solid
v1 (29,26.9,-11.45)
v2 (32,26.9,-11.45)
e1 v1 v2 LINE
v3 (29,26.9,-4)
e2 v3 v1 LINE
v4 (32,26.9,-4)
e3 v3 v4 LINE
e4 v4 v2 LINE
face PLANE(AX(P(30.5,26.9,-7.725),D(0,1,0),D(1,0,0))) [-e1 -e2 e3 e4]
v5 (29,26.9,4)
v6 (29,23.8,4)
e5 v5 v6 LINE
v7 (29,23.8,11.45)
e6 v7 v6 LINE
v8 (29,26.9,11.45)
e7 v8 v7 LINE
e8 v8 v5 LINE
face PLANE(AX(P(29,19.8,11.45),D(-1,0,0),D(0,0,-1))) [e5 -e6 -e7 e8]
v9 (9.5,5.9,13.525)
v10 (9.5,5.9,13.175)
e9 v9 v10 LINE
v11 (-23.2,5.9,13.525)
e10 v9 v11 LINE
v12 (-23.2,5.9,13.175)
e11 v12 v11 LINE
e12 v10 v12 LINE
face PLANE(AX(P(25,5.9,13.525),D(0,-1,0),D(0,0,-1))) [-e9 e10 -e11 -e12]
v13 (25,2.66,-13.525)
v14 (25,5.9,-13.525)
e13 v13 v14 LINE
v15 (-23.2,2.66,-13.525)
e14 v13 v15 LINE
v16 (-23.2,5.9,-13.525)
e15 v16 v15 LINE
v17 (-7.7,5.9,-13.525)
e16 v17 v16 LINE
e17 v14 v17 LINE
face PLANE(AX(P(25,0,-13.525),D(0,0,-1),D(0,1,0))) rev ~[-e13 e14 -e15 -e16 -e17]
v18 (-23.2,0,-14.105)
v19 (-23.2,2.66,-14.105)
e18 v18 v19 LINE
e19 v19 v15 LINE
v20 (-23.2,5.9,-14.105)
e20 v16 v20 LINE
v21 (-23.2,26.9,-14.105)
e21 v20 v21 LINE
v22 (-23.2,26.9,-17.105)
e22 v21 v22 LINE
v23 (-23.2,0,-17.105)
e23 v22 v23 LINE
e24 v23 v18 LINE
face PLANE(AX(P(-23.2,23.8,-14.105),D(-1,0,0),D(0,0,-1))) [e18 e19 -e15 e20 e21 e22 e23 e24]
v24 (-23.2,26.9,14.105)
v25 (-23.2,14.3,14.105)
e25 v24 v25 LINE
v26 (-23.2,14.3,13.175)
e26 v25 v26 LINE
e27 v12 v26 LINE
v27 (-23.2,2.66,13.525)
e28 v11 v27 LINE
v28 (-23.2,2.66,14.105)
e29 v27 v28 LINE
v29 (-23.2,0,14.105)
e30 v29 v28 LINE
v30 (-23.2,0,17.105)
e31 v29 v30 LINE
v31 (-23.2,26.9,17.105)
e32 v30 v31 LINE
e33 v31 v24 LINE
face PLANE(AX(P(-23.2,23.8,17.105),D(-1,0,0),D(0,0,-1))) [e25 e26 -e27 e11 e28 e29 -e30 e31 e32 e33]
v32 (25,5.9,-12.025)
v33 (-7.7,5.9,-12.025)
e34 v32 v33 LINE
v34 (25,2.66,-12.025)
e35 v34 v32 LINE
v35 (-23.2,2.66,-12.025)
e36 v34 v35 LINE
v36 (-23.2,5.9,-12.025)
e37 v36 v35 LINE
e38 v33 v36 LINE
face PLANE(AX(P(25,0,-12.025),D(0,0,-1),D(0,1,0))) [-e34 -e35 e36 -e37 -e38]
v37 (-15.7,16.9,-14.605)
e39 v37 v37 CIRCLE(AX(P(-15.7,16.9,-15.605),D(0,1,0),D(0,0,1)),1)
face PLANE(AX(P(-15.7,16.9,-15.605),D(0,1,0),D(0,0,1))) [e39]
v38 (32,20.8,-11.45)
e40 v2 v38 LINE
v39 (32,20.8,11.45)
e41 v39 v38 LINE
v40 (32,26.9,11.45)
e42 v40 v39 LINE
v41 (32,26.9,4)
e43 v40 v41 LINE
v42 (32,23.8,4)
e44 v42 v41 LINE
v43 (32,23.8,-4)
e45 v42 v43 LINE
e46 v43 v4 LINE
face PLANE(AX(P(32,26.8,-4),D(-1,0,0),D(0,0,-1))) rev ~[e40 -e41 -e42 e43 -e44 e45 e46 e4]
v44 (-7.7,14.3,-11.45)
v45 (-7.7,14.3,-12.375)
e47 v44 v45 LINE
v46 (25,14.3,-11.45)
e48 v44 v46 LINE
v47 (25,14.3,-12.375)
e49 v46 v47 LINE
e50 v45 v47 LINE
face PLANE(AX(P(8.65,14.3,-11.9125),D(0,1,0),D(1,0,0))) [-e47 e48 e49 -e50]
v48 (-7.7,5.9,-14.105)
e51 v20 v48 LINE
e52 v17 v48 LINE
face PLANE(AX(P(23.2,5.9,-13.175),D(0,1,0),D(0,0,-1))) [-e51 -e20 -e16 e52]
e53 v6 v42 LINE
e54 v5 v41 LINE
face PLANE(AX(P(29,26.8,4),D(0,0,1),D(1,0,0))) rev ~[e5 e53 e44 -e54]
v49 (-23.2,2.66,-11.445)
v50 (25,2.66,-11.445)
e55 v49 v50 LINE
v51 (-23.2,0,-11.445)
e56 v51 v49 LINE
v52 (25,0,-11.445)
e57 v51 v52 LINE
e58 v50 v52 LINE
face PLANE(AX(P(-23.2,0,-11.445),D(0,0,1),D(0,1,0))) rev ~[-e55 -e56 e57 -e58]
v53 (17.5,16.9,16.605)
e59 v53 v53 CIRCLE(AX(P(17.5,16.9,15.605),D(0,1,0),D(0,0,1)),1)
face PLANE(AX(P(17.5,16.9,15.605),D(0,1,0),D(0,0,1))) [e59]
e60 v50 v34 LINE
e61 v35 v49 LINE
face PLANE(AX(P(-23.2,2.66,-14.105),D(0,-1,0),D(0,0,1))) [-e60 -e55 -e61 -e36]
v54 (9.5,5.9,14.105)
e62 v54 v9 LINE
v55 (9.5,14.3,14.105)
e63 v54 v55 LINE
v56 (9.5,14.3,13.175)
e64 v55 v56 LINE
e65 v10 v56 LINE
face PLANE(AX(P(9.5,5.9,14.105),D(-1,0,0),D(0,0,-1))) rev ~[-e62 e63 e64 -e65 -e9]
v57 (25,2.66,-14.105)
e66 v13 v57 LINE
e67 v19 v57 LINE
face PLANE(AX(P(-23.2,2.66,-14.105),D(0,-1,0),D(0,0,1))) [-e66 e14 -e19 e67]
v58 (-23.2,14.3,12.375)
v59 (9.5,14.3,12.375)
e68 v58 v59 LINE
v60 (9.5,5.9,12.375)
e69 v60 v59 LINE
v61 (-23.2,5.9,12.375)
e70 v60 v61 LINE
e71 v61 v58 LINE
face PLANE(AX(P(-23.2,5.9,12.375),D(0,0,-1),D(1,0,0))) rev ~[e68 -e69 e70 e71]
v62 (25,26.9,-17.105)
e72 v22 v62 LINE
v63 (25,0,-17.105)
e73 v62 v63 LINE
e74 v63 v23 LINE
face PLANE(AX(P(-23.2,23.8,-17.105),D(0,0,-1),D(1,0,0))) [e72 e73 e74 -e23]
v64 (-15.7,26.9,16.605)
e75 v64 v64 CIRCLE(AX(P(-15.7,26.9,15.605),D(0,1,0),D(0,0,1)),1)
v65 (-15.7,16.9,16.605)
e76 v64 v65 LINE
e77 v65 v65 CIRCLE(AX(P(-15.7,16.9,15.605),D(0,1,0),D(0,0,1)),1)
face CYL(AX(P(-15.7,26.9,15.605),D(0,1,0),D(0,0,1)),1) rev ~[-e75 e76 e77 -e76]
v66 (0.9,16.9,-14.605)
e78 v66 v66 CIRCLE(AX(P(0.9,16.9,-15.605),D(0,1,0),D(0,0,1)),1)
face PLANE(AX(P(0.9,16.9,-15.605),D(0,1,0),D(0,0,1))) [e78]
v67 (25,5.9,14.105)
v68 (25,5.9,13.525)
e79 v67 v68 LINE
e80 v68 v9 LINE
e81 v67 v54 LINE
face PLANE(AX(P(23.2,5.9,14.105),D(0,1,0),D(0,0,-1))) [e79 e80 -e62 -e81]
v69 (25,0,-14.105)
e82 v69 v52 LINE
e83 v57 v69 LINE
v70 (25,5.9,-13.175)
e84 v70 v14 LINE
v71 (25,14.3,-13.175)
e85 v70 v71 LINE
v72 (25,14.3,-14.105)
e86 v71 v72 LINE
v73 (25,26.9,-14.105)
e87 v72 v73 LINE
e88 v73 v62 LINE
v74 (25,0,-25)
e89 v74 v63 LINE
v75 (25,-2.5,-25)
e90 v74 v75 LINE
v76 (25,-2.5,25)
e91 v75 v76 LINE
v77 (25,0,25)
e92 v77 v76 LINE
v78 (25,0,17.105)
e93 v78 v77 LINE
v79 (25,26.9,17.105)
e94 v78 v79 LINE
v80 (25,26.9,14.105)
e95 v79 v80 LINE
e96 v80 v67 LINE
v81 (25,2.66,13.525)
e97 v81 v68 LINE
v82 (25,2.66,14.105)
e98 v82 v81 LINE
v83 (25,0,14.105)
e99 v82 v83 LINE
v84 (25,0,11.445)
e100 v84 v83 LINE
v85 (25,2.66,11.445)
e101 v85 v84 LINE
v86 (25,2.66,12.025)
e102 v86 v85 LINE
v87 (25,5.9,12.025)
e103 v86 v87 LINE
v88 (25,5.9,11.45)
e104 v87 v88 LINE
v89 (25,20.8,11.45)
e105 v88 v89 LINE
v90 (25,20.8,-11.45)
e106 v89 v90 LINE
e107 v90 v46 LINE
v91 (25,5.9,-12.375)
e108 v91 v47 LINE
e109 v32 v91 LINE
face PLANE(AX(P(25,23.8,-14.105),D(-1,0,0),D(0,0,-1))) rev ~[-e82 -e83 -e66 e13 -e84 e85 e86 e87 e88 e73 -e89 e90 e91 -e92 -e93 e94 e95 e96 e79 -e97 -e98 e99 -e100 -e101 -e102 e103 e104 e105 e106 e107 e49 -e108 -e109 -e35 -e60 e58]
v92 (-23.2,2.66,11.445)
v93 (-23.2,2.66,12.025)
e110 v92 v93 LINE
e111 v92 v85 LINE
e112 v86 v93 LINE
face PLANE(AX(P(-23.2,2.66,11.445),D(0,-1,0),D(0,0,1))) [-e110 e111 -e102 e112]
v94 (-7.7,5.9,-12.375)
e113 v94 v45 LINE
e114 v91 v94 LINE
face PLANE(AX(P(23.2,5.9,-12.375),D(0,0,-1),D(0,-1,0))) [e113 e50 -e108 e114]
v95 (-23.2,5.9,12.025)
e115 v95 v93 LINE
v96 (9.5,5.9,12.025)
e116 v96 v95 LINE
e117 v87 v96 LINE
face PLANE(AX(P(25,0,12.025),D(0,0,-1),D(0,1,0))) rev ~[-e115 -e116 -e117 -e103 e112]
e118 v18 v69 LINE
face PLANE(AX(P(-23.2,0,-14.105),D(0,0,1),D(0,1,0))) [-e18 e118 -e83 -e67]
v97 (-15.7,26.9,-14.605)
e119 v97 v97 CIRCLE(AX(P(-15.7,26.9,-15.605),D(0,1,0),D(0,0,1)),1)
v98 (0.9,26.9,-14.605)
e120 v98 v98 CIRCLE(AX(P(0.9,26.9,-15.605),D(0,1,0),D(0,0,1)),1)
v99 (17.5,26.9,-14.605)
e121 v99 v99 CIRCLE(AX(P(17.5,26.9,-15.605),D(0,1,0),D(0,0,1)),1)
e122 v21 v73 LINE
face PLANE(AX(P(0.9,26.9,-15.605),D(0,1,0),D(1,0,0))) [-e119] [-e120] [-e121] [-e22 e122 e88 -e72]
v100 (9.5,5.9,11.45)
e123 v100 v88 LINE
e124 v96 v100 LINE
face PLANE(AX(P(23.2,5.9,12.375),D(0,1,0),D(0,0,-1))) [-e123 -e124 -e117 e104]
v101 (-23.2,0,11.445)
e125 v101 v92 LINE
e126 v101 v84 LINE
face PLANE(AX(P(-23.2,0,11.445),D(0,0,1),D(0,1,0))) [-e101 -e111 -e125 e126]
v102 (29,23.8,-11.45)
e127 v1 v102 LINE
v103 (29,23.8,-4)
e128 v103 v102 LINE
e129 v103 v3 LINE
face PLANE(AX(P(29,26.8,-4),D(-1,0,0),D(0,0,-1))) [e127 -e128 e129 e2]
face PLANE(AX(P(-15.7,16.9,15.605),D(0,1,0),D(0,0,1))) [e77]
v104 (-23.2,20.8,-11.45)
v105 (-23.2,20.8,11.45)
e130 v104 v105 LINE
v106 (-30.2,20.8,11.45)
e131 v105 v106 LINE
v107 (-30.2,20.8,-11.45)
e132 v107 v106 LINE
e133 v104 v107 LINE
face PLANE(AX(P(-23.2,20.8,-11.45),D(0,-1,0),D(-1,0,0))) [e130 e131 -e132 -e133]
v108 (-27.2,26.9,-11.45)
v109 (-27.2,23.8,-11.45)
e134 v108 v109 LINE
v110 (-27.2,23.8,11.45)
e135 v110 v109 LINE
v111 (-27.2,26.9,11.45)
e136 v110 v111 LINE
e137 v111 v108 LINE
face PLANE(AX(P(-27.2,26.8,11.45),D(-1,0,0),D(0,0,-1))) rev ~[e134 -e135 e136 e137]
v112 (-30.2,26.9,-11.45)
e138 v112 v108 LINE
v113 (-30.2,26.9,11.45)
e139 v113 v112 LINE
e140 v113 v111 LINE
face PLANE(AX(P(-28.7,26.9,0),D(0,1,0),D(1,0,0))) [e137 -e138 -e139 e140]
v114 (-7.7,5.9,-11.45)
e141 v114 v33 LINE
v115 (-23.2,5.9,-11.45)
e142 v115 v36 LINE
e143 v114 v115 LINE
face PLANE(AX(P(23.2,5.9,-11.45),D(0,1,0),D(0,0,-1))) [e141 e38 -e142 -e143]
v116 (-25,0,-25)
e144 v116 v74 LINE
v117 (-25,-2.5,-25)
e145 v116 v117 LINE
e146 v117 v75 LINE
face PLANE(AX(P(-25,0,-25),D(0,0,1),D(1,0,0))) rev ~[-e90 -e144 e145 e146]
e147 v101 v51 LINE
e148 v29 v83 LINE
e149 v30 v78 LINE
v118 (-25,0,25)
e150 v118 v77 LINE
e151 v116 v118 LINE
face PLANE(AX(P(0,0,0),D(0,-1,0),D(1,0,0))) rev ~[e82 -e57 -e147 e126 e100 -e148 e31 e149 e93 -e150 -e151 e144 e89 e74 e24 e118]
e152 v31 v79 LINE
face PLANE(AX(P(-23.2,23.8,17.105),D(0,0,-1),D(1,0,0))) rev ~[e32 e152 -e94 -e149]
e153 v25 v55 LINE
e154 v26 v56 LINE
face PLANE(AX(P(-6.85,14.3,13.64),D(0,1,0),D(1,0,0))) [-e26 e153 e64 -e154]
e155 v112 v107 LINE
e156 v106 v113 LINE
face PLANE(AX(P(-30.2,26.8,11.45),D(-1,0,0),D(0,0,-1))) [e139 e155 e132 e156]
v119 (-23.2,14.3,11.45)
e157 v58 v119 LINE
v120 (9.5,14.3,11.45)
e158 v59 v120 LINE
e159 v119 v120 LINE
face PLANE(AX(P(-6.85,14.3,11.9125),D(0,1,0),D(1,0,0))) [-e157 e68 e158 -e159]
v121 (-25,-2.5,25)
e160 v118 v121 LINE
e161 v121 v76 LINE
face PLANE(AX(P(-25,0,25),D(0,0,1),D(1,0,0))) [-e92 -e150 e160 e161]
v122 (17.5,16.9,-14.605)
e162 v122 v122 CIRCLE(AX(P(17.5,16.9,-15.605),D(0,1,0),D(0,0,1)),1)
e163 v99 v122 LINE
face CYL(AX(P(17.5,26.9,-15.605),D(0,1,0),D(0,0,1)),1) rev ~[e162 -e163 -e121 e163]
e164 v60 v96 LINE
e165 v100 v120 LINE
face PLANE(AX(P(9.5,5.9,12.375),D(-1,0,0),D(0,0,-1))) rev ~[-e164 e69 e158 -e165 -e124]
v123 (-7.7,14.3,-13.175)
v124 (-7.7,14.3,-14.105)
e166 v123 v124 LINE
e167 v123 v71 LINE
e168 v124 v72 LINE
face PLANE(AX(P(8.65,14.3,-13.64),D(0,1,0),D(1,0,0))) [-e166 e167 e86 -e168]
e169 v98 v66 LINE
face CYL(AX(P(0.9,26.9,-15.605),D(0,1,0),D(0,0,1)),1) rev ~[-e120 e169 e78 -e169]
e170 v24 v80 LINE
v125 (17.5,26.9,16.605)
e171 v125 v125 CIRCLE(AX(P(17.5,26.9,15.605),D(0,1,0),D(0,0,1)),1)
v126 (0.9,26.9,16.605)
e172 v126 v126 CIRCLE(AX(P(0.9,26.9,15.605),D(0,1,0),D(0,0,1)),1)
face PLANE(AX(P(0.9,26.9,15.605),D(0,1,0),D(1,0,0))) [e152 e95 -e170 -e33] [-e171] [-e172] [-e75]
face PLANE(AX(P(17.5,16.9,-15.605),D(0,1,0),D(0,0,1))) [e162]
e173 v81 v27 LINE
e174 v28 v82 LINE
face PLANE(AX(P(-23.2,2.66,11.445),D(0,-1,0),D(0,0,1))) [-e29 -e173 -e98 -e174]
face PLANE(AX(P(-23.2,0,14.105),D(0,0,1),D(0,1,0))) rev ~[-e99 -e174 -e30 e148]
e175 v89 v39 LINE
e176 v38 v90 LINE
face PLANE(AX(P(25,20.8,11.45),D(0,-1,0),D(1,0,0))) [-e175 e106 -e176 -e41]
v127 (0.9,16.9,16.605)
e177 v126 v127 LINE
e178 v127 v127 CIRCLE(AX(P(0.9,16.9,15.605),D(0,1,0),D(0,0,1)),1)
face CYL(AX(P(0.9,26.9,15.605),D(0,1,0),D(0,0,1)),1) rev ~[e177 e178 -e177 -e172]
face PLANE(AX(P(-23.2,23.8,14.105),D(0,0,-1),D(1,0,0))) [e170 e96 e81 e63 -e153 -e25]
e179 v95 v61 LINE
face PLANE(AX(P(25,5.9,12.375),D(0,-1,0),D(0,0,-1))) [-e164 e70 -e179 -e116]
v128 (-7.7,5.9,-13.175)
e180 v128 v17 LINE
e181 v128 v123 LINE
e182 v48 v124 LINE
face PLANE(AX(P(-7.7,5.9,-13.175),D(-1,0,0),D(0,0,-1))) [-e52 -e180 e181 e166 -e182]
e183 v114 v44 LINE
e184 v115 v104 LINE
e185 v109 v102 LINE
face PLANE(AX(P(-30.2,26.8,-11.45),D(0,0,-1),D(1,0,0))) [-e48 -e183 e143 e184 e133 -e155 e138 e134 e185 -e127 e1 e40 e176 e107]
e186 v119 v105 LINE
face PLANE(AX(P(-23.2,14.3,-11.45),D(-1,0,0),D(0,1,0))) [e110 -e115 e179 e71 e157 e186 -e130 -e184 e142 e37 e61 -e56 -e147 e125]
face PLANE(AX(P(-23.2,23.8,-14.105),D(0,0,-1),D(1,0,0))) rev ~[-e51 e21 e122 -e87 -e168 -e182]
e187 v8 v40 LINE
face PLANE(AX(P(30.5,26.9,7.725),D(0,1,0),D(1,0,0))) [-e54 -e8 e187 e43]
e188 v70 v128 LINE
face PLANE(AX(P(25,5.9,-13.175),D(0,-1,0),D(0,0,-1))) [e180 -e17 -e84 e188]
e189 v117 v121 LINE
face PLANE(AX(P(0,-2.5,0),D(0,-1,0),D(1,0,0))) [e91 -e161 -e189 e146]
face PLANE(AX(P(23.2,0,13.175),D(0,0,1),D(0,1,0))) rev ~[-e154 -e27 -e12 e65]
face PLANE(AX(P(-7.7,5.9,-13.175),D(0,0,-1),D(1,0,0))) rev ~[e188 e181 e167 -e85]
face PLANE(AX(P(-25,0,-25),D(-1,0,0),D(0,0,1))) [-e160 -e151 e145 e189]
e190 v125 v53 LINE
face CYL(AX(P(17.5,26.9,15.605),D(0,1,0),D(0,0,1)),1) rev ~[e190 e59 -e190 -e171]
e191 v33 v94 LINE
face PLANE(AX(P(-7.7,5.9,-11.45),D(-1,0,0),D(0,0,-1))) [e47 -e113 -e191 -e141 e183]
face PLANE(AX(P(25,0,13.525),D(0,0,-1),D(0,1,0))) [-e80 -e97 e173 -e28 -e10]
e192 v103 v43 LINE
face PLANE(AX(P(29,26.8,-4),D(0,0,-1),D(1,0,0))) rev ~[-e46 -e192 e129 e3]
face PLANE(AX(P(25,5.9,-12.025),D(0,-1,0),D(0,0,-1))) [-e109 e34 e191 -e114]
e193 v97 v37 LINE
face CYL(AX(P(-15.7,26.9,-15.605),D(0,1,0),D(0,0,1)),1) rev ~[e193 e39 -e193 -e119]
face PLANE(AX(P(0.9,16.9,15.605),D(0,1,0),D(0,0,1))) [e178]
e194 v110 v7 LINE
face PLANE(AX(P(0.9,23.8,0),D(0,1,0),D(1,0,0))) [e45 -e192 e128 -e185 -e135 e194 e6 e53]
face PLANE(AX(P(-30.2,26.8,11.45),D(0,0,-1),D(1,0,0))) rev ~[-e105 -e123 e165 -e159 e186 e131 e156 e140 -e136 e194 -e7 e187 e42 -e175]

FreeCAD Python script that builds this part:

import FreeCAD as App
import Part
import Sketcher

V = App.Vector


def add_polygon(sketch, points):
    """Adds a closed chain of lines whose ends are joined by coincident constraints."""
    first, n = sketch.GeometryCount, len(points)
    for a, b in zip(points, points[1:] + points[:1]):
        sketch.addGeometry(Part.LineSegment(App.Vector(*a, 0), App.Vector(*b, 0)), False)
    for i in range(n):
        sketch.addConstraint(Sketcher.Constraint("Coincident", first + i, 2, first + (i + 1) % n, 1))

doc = App.newDocument("Part")
body = doc.addObject("PartDesign::Body", "Body")

# Sketch on XZ plane
sketch1 = doc.addObject("Sketcher::SketchObject", "Sketch")
body.addObject(sketch1)
sketch1.AttachmentSupport = (doc.XZ_Plane, [""])
sketch1.MapMode = "FlatFace"
add_polygon(sketch1, [(-23, -12), (-23, 12), (23, 12), (23, -12)])  # lines 0-3
sketch1.addConstraint([
    Sketcher.Constraint("Vertical", 0),
    Sketcher.Constraint("Horizontal", 1),
    Sketcher.Constraint("Vertical", 2),
    Sketcher.Constraint("Horizontal", 3),
    Sketcher.Constraint("Symmetric", 0, 2, 2, 2, -1, 1),
    Sketcher.Constraint("DistanceX", 1, 1, 1, 2, 46.4),
    Sketcher.Constraint("DistanceY", 0, 1, 0, 2, 24.75),
])
pad1 = doc.addObject("PartDesign::Pad", "Pad")
body.addObject(pad1)
pad1.Profile = sketch1
pad1.Length = 5.9
pad1.Reversed = True

# Sketch on XZ plane
sketch2 = doc.addObject("Sketcher::SketchObject", "Sketch001")
body.addObject(sketch2)
sketch2.AttachmentSupport = (doc.XZ_Plane, [""])
sketch2.MapMode = "FlatFace"
sketch2.AttachmentOffset = App.Placement(V(0, 0, -5.9), App.Rotation())
add_polygon(sketch2, [(23, 11), (23, -11), (-23, -11), (-23, 11)])  # lines 0-3
sketch2.addConstraint([
    Sketcher.Constraint("Vertical", 0),
    Sketcher.Constraint("Horizontal", 1),
    Sketcher.Constraint("Vertical", 2),
    Sketcher.Constraint("Horizontal", 3),
    Sketcher.Constraint("Symmetric", 0, 2, 2, 2, -1, 1),
    Sketcher.Constraint("DistanceX", 1, 2, 1, 1, 46.4),
    Sketcher.Constraint("DistanceY", 0, 2, 0, 1, 22.9),
])
pad2 = doc.addObject("PartDesign::Pad", "Pad001")
body.addObject(pad2)
pad2.Profile = sketch2
pad2.Length = 2.5
pad2.Reversed = True

# Sketch on XZ plane
sketch3 = doc.addObject("Sketcher::SketchObject", "Sketch002")
body.addObject(sketch3)
sketch3.AttachmentSupport = (doc.XZ_Plane, [""])
sketch3.MapMode = "FlatFace"
add_polygon(sketch3, [(-25, 25), (-25, -25), (25, -25), (25, 25)])  # lines 0-3
sketch3.addConstraint([
    Sketcher.Constraint("Vertical", 0),
    Sketcher.Constraint("Horizontal", 1),
    Sketcher.Constraint("Vertical", 2),
    Sketcher.Constraint("Horizontal", 3),
    Sketcher.Constraint("Symmetric", 0, 2, 2, 2, -1, 1),
    Sketcher.Constraint("Equal", 3, 0),
    Sketcher.Constraint("DistanceX", 1, 1, 1, 2, 50.0),
])
pad3 = doc.addObject("PartDesign::Pad", "Pad002")
body.addObject(pad3)
pad3.Profile = sketch3
pad3.Length = 2.5

# Sketch on XZ plane
sketch4 = doc.addObject("Sketcher::SketchObject", "Sketch003")
body.addObject(sketch4)
sketch4.AttachmentSupport = (doc.XZ_Plane, [""])
sketch4.MapMode = "FlatFace"
add_polygon(sketch4, [(-23.2, -14.1), (-23.2, -13.2), (23.2, -13.2), (23.2, -14.1)])  # lines 0-3
sketch4.addConstraint([
    Sketcher.Constraint("Vertical", 0),
    Sketcher.Constraint("Horizontal", 1),
    Sketcher.Constraint("Vertical", 2),
    Sketcher.Constraint("Horizontal", 3),
    Sketcher.Constraint("DistanceX", 1, 1, 1, 2, 46.4),
    Sketcher.Constraint("DistanceY", 0, 1, 0, 2, 0.93),
    Sketcher.Constraint("DistanceX", 0, 2, -1, 1, 23.2),
    Sketcher.Constraint("DistanceY", 0, 2, -1, 1, 13.175),
])
pad4 = doc.addObject("PartDesign::Pad", "Pad003")
body.addObject(pad4)
pad4.Profile = sketch4
pad4.Length = 5.9
pad4.Reversed = True

# Sketch on XZ plane
sketch5 = doc.addObject("Sketcher::SketchObject", "Sketch004")
body.addObject(sketch5)
sketch5.AttachmentSupport = (doc.XZ_Plane, [""])
sketch5.MapMode = "FlatFace"
add_polygon(sketch5, [(-23.2, 13.2), (-23.2, 14.1), (23.2, 14.1), (23.2, 13.2)])  # lines 0-3
sketch5.addConstraint([
    Sketcher.Constraint("Vertical", 0),
    Sketcher.Constraint("Horizontal", 1),
    Sketcher.Constraint("Vertical", 2),
    Sketcher.Constraint("Horizontal", 3),
    Sketcher.Constraint("DistanceX", 1, 1, 1, 2, 46.4),
    Sketcher.Constraint("DistanceY", 0, 1, 0, 2, 0.93),
    Sketcher.Constraint("DistanceX", 0, 2, -1, 1, 23.2),
    Sketcher.Constraint("DistanceY", -1, 1, 0, 2, 14.105),
])
pad5 = doc.addObject("PartDesign::Pad", "Pad004")
body.addObject(pad5)
pad5.Profile = sketch5
pad5.Length = 5.9
pad5.Reversed = True

# Sketch on XZ plane
sketch6 = doc.addObject("Sketcher::SketchObject", "Sketch005")
body.addObject(sketch6)
sketch6.AttachmentSupport = (doc.XZ_Plane, [""])
sketch6.MapMode = "FlatFace"
add_polygon(sketch6, [(-23.2, -17.1), (-23.2, -14.1), (23.2, -14.1), (23.2, -17.1)])  # lines 0-3
sketch6.addConstraint([
    Sketcher.Constraint("Vertical", 0),
    Sketcher.Constraint("Horizontal", 1),
    Sketcher.Constraint("Vertical", 2),
    Sketcher.Constraint("Horizontal", 3),
    Sketcher.Constraint("DistanceY", 0, 1, 0, 2, 3.0),
    Sketcher.Constraint("DistanceX", 1, 1, 1, 2, 46.4),
    Sketcher.Constraint("DistanceX", 0, 2, -1, 1, 23.2),
    Sketcher.Constraint("DistanceY", 0, 2, -1, 1, 14.105),
])
pad6 = doc.addObject("PartDesign::Pad", "Pad005")
body.addObject(pad6)
pad6.Profile = sketch6
pad6.Length = 8.4
pad6.Reversed = True

# Sketch on XZ plane
sketch7 = doc.addObject("Sketcher::SketchObject", "Sketch006")
body.addObject(sketch7)
sketch7.AttachmentSupport = (doc.XZ_Plane, [""])
sketch7.MapMode = "FlatFace"
add_polygon(sketch7, [(-23.2, 14.1), (-23.2, 17.1), (23.2, 17.1), (23.2, 14.1)])  # lines 0-3
sketch7.addConstraint([
    Sketcher.Constraint("Vertical", 0),
    Sketcher.Constraint("Horizontal", 1),
    Sketcher.Constraint("Vertical", 2),
    Sketcher.Constraint("Horizontal", 3),
    Sketcher.Constraint("DistanceY", 0, 1, 0, 2, 3.0),
    Sketcher.Constraint("DistanceX", 1, 1, 1, 2, 46.4),
    Sketcher.Constraint("DistanceX", 0, 2, -1, 1, 23.2),
    Sketcher.Constraint("DistanceY", -1, 1, 0, 2, 17.105),
])
pad7 = doc.addObject("PartDesign::Pad", "Pad006")
body.addObject(pad7)
pad7.Profile = sketch7
pad7.Length = 8.4
pad7.Reversed = True

# Sketch on XZ plane
sketch8 = doc.addObject("Sketcher::SketchObject", "Sketch007")
body.addObject(sketch8)
sketch8.AttachmentSupport = (doc.XZ_Plane, [""])
sketch8.MapMode = "FlatFace"
sketch8.AttachmentOffset = App.Placement(V(0, 0, -8.4), App.Rotation())
add_polygon(sketch8, [(-23, -11), (-23, 11), (23, 11), (23, -11)])  # lines 0-3
sketch8.addConstraint([
    Sketcher.Constraint("Vertical", 0),
    Sketcher.Constraint("Horizontal", 1),
    Sketcher.Constraint("Vertical", 2),
    Sketcher.Constraint("Horizontal", 3),
    Sketcher.Constraint("Symmetric", 0, 2, 2, 2, -1, 1),
    Sketcher.Constraint("DistanceX", 1, 1, 1, 2, 46.4),
    Sketcher.Constraint("DistanceY", 0, 1, 0, 2, 22.9),
])
pad8 = doc.addObject("PartDesign::Pad", "Pad007")
body.addObject(pad8)
pad8.Profile = sketch8
pad8.Length = 8.4
pad8.Reversed = True

# Sketch on XZ plane
sketch9 = doc.addObject("Sketcher::SketchObject", "Sketch008")
body.addObject(sketch9)
sketch9.AttachmentSupport = (doc.XZ_Plane, [""])
sketch9.MapMode = "FlatFace"
sketch9.AttachmentOffset = App.Placement(V(0, 0, -8.4), App.Rotation())
add_polygon(sketch9, [(-23.2, 14.1), (-23.2, 17.1), (23.2, 17.1), (23.2, 14.1)])  # lines 0-3
sketch9.addConstraint([
    Sketcher.Constraint("Vertical", 0),
    Sketcher.Constraint("Horizontal", 1),
    Sketcher.Constraint("Vertical", 2),
    Sketcher.Constraint("Horizontal", 3),
    Sketcher.Constraint("DistanceY", 0, 1, 0, 2, 3.0),
    Sketcher.Constraint("DistanceX", 1, 1, 1, 2, 46.4),
    Sketcher.Constraint("DistanceX", 0, 2, -1, 1, 23.2),
    Sketcher.Constraint("DistanceY", -1, 1, 0, 2, 17.105),
])
pad9 = doc.addObject("PartDesign::Pad", "Pad008")
body.addObject(pad9)
pad9.Profile = sketch9
pad9.Length = 8.4
pad9.Reversed = True

# Sketch on YZ plane
sketch10 = doc.addObject("Sketcher::SketchObject", "Sketch009")
body.addObject(sketch10)
sketch10.AttachmentSupport = (doc.YZ_Plane, [""])
sketch10.MapMode = "FlatFace"
sketch10.AttachmentOffset = App.Placement(V(0, 0, 23.2), App.Rotation())
add_polygon(sketch10, [(16.8, 11.4), (5.9, 11.4), (5.9, 12.4), (0, 12.4), (0, -12.4), (5.9, -12.4), (5.9, -11.4), (16.8, -11.4)])  # lines 0-7
sketch10.addConstraint([
    Sketcher.Constraint("Horizontal", 0),
    Sketcher.Constraint("Vertical", 1),
    Sketcher.Constraint("Horizontal", 2),
    Sketcher.Constraint("Vertical", 3),
    Sketcher.Constraint("Horizontal", 4),
    Sketcher.Constraint("Vertical", 5),
    Sketcher.Constraint("Horizontal", 6),
    Sketcher.Constraint("Vertical", 7),
    Sketcher.Constraint("Symmetric", 2, 2, 3, 2, -1, 1),
    Sketcher.Constraint("Symmetric", 0, 2, 5, 2, -1),
    Sketcher.Constraint("DistanceX", 0, 2, 0, 1, 10.9),
    Sketcher.Constraint("DistanceX", 2, 2, 2, 1, 5.9),
    Sketcher.Constraint("DistanceY", 7, 1, 7, 2, 22.9),
    Sketcher.Constraint("DistanceY", 3, 2, 3, 1, 24.75),
])
pad10 = doc.addObject("PartDesign::Pad", "Pad009")
body.addObject(pad10)
pad10.Profile = sketch10
pad10.Length = 1.8

# Sketch on YZ plane
sketch11 = doc.addObject("Sketcher::SketchObject", "Sketch010")
body.addObject(sketch11)
sketch11.AttachmentSupport = (doc.YZ_Plane, [""])
sketch11.MapMode = "FlatFace"
sketch11.AttachmentOffset = App.Placement(V(0, 0, 23.2), App.Rotation())
add_polygon(sketch11, [(16.8, 14.1), (16.8, 17.1), (0, 17.1), (0, 13.2), (5.9, 13.2), (5.9, 14.1)])  # lines 0-5
sketch11.addConstraint([
    Sketcher.Constraint("Vertical", 0),
    Sketcher.Constraint("Horizontal", 1),
    Sketcher.Constraint("Vertical", 2),
    Sketcher.Constraint("Horizontal", 3),
    Sketcher.Constraint("Vertical", 4),
    Sketcher.Constraint("Horizontal", 5),
    Sketcher.Constraint("PointOnObject", 1, 2, -2),
    Sketcher.Constraint("DistanceY", 0, 1, 0, 2, 3.0),
    Sketcher.Constraint("DistanceX", 1, 2, 1, 1, 16.8),
    Sketcher.Constraint("DistanceX", 3, 1, 3, 2, 5.9),
    Sketcher.Constraint("DistanceY", 2, 2, 2, 1, 3.93),
    Sketcher.Constraint("DistanceY", -1, 1, 0, 2, 17.105),
])
pad11 = doc.addObject("PartDesign::Pad", "Pad010")
body.addObject(pad11)
pad11.Profile = sketch11
pad11.Length = 1.8

# Sketch on XZ plane
sketch12 = doc.addObject("Sketcher::SketchObject", "Sketch011")
body.addObject(sketch12)
sketch12.AttachmentSupport = (doc.XZ_Plane, [""])
sketch12.MapMode = "FlatFace"
sketch12.AttachmentOffset = App.Placement(V(0, 0, -5.9), App.Rotation())
add_polygon(sketch12, [(-23.2, 11.4), (-23.2, 12.4), (9.5, 12.4), (9.5, 11.4)])  # lines 0-3
add_polygon(sketch12, [(-23.2, 13.2), (-23.2, 14.1), (9.5, 14.1), (9.5, 13.2)])  # lines 4-7
sketch12.addConstraint([
    Sketcher.Constraint("Vertical", 0),
    Sketcher.Constraint("Horizontal", 1),
    Sketcher.Constraint("Vertical", 2),
    Sketcher.Constraint("Horizontal", 3),
    Sketcher.Constraint("Vertical", 4),
    Sketcher.Constraint("Horizontal", 5),
    Sketcher.Constraint("Vertical", 6),
    Sketcher.Constraint("Horizontal", 7),
    Sketcher.Constraint("Vertical", 3, 2, 4, 2),
    Sketcher.Constraint("Vertical", 2, 2, 5, 2),
    Sketcher.Constraint("DistanceX", 1, 1, 1, 2, 32.7),
    Sketcher.Constraint("DistanceY", 4, 1, 4, 2, 0.93),
    Sketcher.Constraint("DistanceX", 0, 2, -1, 1, 23.2),
    Sketcher.Constraint("DistanceY", 1, 2, 6, 2, 0.8),
    Sketcher.Constraint("DistanceY", 0, 1, 0, 2, 0.925),
    Sketcher.Constraint("DistanceY", -1, 1, 2, 2, 11.45),
])
pad12 = doc.addObject("PartDesign::Pad", "Pad011")
body.addObject(pad12)
pad12.Profile = sketch12
pad12.Length = 8.4
pad12.Reversed = True

# Sketch on YZ plane
sketch13 = doc.addObject("Sketcher::SketchObject", "Sketch012")
body.addObject(sketch13)
sketch13.AttachmentSupport = (doc.YZ_Plane, [""])
sketch13.MapMode = "FlatFace"
sketch13.AttachmentOffset = App.Placement(V(0, 0, 23.2), App.Rotation())
add_polygon(sketch13, [(0, -17.1), (8.4, -17.1), (8.4, -14.1), (5.9, -14.1), (5.9, -13.2), (0, -13.2)])  # lines 0-5
sketch13.addConstraint([
    Sketcher.Constraint("Horizontal", 0),
    Sketcher.Constraint("Vertical", 1),
    Sketcher.Constraint("Horizontal", 2),
    Sketcher.Constraint("Vertical", 3),
    Sketcher.Constraint("Horizontal", 4),
    Sketcher.Constraint("Vertical", 5),
    Sketcher.Constraint("PointOnObject", 4, 2, -2),
    Sketcher.Constraint("DistanceY", 1, 1, 1, 2, 3.0),
    Sketcher.Constraint("DistanceX", 0, 1, 0, 2, 8.4),
    Sketcher.Constraint("DistanceX", 2, 2, 2, 1, 2.5),
    Sketcher.Constraint("DistanceY", 3, 1, 3, 2, 0.93),
    Sketcher.Constraint("DistanceY", 0, 2, -1, 1, 17.105),
])
pad13 = doc.addObject("PartDesign::Pad", "Pad012")
body.addObject(pad13)
pad13.Profile = sketch13
pad13.Length = 1.8

# Sketch on XZ plane
sketch14 = doc.addObject("Sketcher::SketchObject", "Sketch013")
body.addObject(sketch14)
sketch14.AttachmentSupport = (doc.XZ_Plane, [""])
sketch14.MapMode = "FlatFace"
sketch14.AttachmentOffset = App.Placement(V(0, 0, -8.4), App.Rotation())
add_polygon(sketch14, [(-23.2, -17.1), (-23.2, -14.1), (25, -14.1), (25, -17.1)])  # lines 0-3
sketch14.addConstraint([
    Sketcher.Constraint("Vertical", 0),
    Sketcher.Constraint("Horizontal", 1),
    Sketcher.Constraint("Vertical", 2),
    Sketcher.Constraint("Horizontal", 3),
    Sketcher.Constraint("DistanceY", 0, 1, 0, 2, 3.0),
    Sketcher.Constraint("DistanceX", 1, 1, 1, 2, 48.2),
    Sketcher.Constraint("DistanceX", -1, 1, 1, 2, 25.0),
    Sketcher.Constraint("DistanceY", 0, 2, -1, 1, 14.105),
])
pad14 = doc.addObject("PartDesign::Pad", "Pad013")
body.addObject(pad14)
pad14.Profile = sketch14
pad14.Length = 8.4
pad14.Reversed = True

# Sketch on XZ plane
sketch15 = doc.addObject("Sketcher::SketchObject", "Sketch014")
body.addObject(sketch15)
sketch15.AttachmentSupport = (doc.XZ_Plane, [""])
sketch15.MapMode = "FlatFace"
sketch15.AttachmentOffset = App.Placement(V(0, 0, -5.9), App.Rotation())
add_polygon(sketch15, [(-7.7, -14.1), (-7.7, -13.2), (25, -13.2), (25, -14.1)])  # lines 0-3
add_polygon(sketch15, [(-7.7, -12.4), (-7.7, -11.4), (25, -11.4), (25, -12.4)])  # lines 4-7
sketch15.addConstraint([
    Sketcher.Constraint("Vertical", 0),
    Sketcher.Constraint("Horizontal", 1),
    Sketcher.Constraint("Vertical", 2),
    Sketcher.Constraint("Horizontal", 3),
    Sketcher.Constraint("Vertical", 4),
    Sketcher.Constraint("Horizontal", 5),
    Sketcher.Constraint("Vertical", 6),
    Sketcher.Constraint("Horizontal", 7),
    Sketcher.Constraint("Vertical", 3, 2, 4, 2),
    Sketcher.Constraint("Vertical", 2, 2, 5, 2),
    Sketcher.Constraint("DistanceX", 1, 1, 1, 2, 32.7),
    Sketcher.Constraint("DistanceX", -1, 1, 1, 2, 25.0),
    Sketcher.Constraint("DistanceY", 0, 1, 0, 2, 0.93),
    Sketcher.Constraint("DistanceY", 1, 2, 6, 2, 0.8),
    Sketcher.Constraint("DistanceY", 4, 1, 4, 2, 0.925),
    Sketcher.Constraint("DistanceY", 4, 2, -1, 1, 11.45),
])
pad15 = doc.addObject("PartDesign::Pad", "Pad014")
body.addObject(pad15)
pad15.Profile = sketch15
pad15.Length = 8.4
pad15.Reversed = True

# Sketch on YZ plane
sketch16 = doc.addObject("Sketcher::SketchObject", "Sketch015")
body.addObject(sketch16)
sketch16.AttachmentSupport = (doc.YZ_Plane, [""])
sketch16.MapMode = "FlatFace"
sketch16.AttachmentOffset = App.Placement(V(0, 0, 25), App.Rotation())
add_polygon(sketch16, [(5.9, 12.38), (0, 12.38), (0, 12.03), (5.9, 12.03)])  # lines 0-3
add_polygon(sketch16, [(5.9, 13.53), (0, 13.53), (0, 13.18), (5.9, 13.18)])  # lines 4-7
sketch16.addConstraint([
    Sketcher.Constraint("Horizontal", 0),
    Sketcher.Constraint("Vertical", 1),
    Sketcher.Constraint("Horizontal", 2),
    Sketcher.Constraint("Vertical", 3),
    Sketcher.Constraint("Horizontal", 4),
    Sketcher.Constraint("Vertical", 5),
    Sketcher.Constraint("Horizontal", 6),
    Sketcher.Constraint("Vertical", 7),
    Sketcher.Constraint("PointOnObject", 0, 2, -2),
    Sketcher.Constraint("PointOnObject", 4, 2, -2),
    Sketcher.Constraint("Vertical", 3, 2, 6, 2),
    Sketcher.Constraint("Equal", 3, 5),
    Sketcher.Constraint("DistanceX", 0, 2, 0, 1, 5.9),
    Sketcher.Constraint("DistanceY", 1, 2, 1, 1, 0.35),
    Sketcher.Constraint("DistanceY", 1, 2, 4, 2, 1.5),
    Sketcher.Constraint("DistanceY", -1, 1, 0, 2, 12.375),
])
pocket1 = doc.addObject("PartDesign::Pocket", "Pocket")
body.addObject(pocket1)
pocket1.Profile = sketch16
pocket1.Type = "ThroughAll"

# Sketch on YZ plane
sketch17 = doc.addObject("Sketcher::SketchObject", "Sketch016")
body.addObject(sketch17)
sketch17.AttachmentSupport = (doc.YZ_Plane, [""])
sketch17.MapMode = "FlatFace"
sketch17.AttachmentOffset = App.Placement(V(0, 0, 25), App.Rotation())
add_polygon(sketch17, [(5.9, -12.03), (0, -12.03), (0, -12.38), (5.9, -12.38)])  # lines 0-3
add_polygon(sketch17, [(5.9, -13.18), (0, -13.18), (0, -13.53), (5.9, -13.53)])  # lines 4-7
sketch17.addConstraint([
    Sketcher.Constraint("Horizontal", 0),
    Sketcher.Constraint("Vertical", 1),
    Sketcher.Constraint("Horizontal", 2),
    Sketcher.Constraint("Vertical", 3),
    Sketcher.Constraint("Horizontal", 4),
    Sketcher.Constraint("Vertical", 5),
    Sketcher.Constraint("Horizontal", 6),
    Sketcher.Constraint("Vertical", 7),
    Sketcher.Constraint("PointOnObject", 0, 2, -2),
    Sketcher.Constraint("PointOnObject", 4, 2, -2),
    Sketcher.Constraint("Vertical", 3, 2, 6, 2),
    Sketcher.Constraint("Equal", 3, 5),
    Sketcher.Constraint("DistanceX", 0, 2, 0, 1, 5.9),
    Sketcher.Constraint("DistanceY", 1, 2, 1, 1, 0.35),
    Sketcher.Constraint("DistanceY", 4, 2, 1, 2, 0.8),
    Sketcher.Constraint("DistanceY", 0, 2, -1, 1, 12.025),
])
pocket2 = doc.addObject("PartDesign::Pocket", "Pocket001")
body.addObject(pocket2)
pocket2.Profile = sketch17
pocket2.Type = "ThroughAll"

# Sketch on YZ plane
sketch18 = doc.addObject("Sketcher::SketchObject", "Sketch017")
body.addObject(sketch18)
sketch18.AttachmentSupport = (doc.YZ_Plane, [""])
sketch18.MapMode = "FlatFace"
sketch18.AttachmentOffset = App.Placement(V(0, 0, -23.2), App.Rotation())
add_polygon(sketch18, [(16.8, -11.4), (14.3, -11.4), (14.3, 11.4), (16.8, 11.4)])  # lines 0-3
sketch18.addConstraint([
    Sketcher.Constraint("Horizontal", 0),
    Sketcher.Constraint("Vertical", 1),
    Sketcher.Constraint("Horizontal", 2),
    Sketcher.Constraint("Vertical", 3),
    Sketcher.Constraint("DistanceX", 0, 2, 0, 1, 2.5),
    Sketcher.Constraint("DistanceY", 1, 1, 1, 2, 22.9),
    Sketcher.Constraint("DistanceX", -1, 1, 0, 2, 14.3),
    Sketcher.Constraint("DistanceY", 0, 2, -1, 1, 11.45),
])
pad16 = doc.addObject("PartDesign::Pad", "Pad015")
body.addObject(pad16)
pad16.Profile = sketch18
pad16.Length = 4
pad16.Reversed = True

# Sketch on YZ plane
sketch19 = doc.addObject("Sketcher::SketchObject", "Sketch018")
body.addObject(sketch19)
sketch19.AttachmentSupport = (doc.YZ_Plane, [""])
sketch19.MapMode = "FlatFace"
sketch19.AttachmentOffset = App.Placement(V(0, 0, -27.2), App.Rotation())
add_polygon(sketch19, [(16.8, -11.4), (14.3, -11.4), (14.3, 11.4), (16.8, 11.4)])  # lines 0-3
sketch19.addConstraint([
    Sketcher.Constraint("Horizontal", 0),
    Sketcher.Constraint("Vertical", 1),
    Sketcher.Constraint("Horizontal", 2),
    Sketcher.Constraint("Vertical", 3),
    Sketcher.Constraint("DistanceX", 0, 2, 0, 1, 2.5),
    Sketcher.Constraint("DistanceY", 1, 1, 1, 2, 22.9),
    Sketcher.Constraint("DistanceX", -1, 1, 0, 2, 14.3),
    Sketcher.Constraint("DistanceY", 0, 2, -1, 1, 11.45),
])
pad17 = doc.addObject("PartDesign::Pad", "Pad016")
body.addObject(pad17)
pad17.Profile = sketch19
pad17.Length = 3
pad17.Reversed = True

# Sketch on XZ plane
sketch20 = doc.addObject("Sketcher::SketchObject", "Sketch019")
body.addObject(sketch20)
sketch20.AttachmentSupport = (doc.XZ_Plane, [""])
sketch20.MapMode = "FlatFace"
sketch20.AttachmentOffset = App.Placement(V(0, 0, -16.8), App.Rotation())
add_polygon(sketch20, [(-30.2, -11.4), (-30.2, 11.4), (-27.2, 11.4), (-27.2, -11.4)])  # lines 0-3
sketch20.addConstraint([
    Sketcher.Constraint("Vertical", 0),
    Sketcher.Constraint("Horizontal", 1),
    Sketcher.Constraint("Vertical", 2),
    Sketcher.Constraint("Horizontal", 3),
    Sketcher.Constraint("DistanceX", 1, 1, 1, 2, 3.0),
    Sketcher.Constraint("DistanceY", 0, 1, 0, 2, 22.9),
    Sketcher.Constraint("DistanceX", 0, 2, -1, 1, 30.2),
    Sketcher.Constraint("DistanceY", -1, 1, 0, 2, 11.45),
])
pad18 = doc.addObject("PartDesign::Pad", "Pad017")
body.addObject(pad18)
pad18.Profile = sketch20
pad18.Length = 1.5
pad18.Reversed = True

# Sketch on YZ plane
sketch21 = doc.addObject("Sketcher::SketchObject", "Sketch020")
body.addObject(sketch21)
sketch21.AttachmentSupport = (doc.YZ_Plane, [""])
sketch21.MapMode = "FlatFace"
sketch21.AttachmentOffset = App.Placement(V(0, 0, 25), App.Rotation())
add_polygon(sketch21, [(16.8, 11.4), (14.3, 11.4), (14.3, -11.4), (16.8, -11.4)])  # lines 0-3
sketch21.addConstraint([
    Sketcher.Constraint("Horizontal", 0),
    Sketcher.Constraint("Vertical", 1),
    Sketcher.Constraint("Horizontal", 2),
    Sketcher.Constraint("Vertical", 3),
    Sketcher.Constraint("DistanceX", 0, 2, 0, 1, 2.5),
    Sketcher.Constraint("DistanceY", 1, 2, 1, 1, 22.9),
    Sketcher.Constraint("DistanceX", -1, 1, 0, 2, 14.3),
    Sketcher.Constraint("DistanceY", -1, 1, 0, 2, 11.45),
])
pad19 = doc.addObject("PartDesign::Pad", "Pad018")
body.addObject(pad19)
pad19.Profile = sketch21
pad19.Length = 7

# Sketch on XZ plane
sketch22 = doc.addObject("Sketcher::SketchObject", "Sketch021")
body.addObject(sketch22)
sketch22.AttachmentSupport = (doc.XZ_Plane, [""])
sketch22.MapMode = "FlatFace"
sketch22.AttachmentOffset = App.Placement(V(0, 0, -16.8), App.Rotation())
add_polygon(sketch22, [(29, -11.4), (29, 11.4), (32, 11.4), (32, -11.4)])  # lines 0-3
sketch22.addConstraint([
    Sketcher.Constraint("Vertical", 0),
    Sketcher.Constraint("Horizontal", 1),
    Sketcher.Constraint("Vertical", 2),
    Sketcher.Constraint("Horizontal", 3),
    Sketcher.Constraint("DistanceX", 1, 1, 1, 2, 3.0),
    Sketcher.Constraint("DistanceY", 0, 1, 0, 2, 22.9),
    Sketcher.Constraint("DistanceX", -1, 1, 0, 2, 29.0),
    Sketcher.Constraint("DistanceY", -1, 1, 0, 2, 11.45),
])
pad20 = doc.addObject("PartDesign::Pad", "Pad019")
body.addObject(pad20)
pad20.Profile = sketch22
pad20.Length = 3
pad20.Reversed = True

# Sketch on XZ plane
sketch23 = doc.addObject("Sketcher::SketchObject", "Sketch022")
body.addObject(sketch23)
sketch23.AttachmentSupport = (doc.XZ_Plane, [""])
sketch23.MapMode = "FlatFace"
sketch23.AttachmentOffset = App.Placement(V(0, 0, -16.8), App.Rotation())
add_polygon(sketch23, [(-23.2, -17.1), (-23.2, -14.1), (25, -14.1), (25, -17.1)])  # lines 0-3
add_polygon(sketch23, [(-23.2, 14.1), (-23.2, 17.1), (25, 17.1), (25, 14.1)])  # lines 4-7
sketch23.addConstraint([
    Sketcher.Constraint("Vertical", 0),
    Sketcher.Constraint("Horizontal", 1),
    Sketcher.Constraint("Vertical", 2),
    Sketcher.Constraint("Horizontal", 3),
    Sketcher.Constraint("Vertical", 4),
    Sketcher.Constraint("Horizontal", 5),
    Sketcher.Constraint("Vertical", 6),
    Sketcher.Constraint("Horizontal", 7),
    Sketcher.Constraint("Symmetric", 3, 2, 4, 2, -1),
    Sketcher.Constraint("Symmetric", 1, 2, 6, 2, -1),
    Sketcher.Constraint("DistanceY", 0, 1, 0, 2, 3.0),
    Sketcher.Constraint("DistanceX", 1, 1, 1, 2, 48.2),
    Sketcher.Constraint("DistanceX", -1, 1, 1, 2, 25.0),
    Sketcher.Constraint("DistanceY", 0, 2, 4, 2, 31.21),
])
pad21 = doc.addObject("PartDesign::Pad", "Pad020")
body.addObject(pad21)
pad21.Profile = sketch23
pad21.Length = 7
pad21.Reversed = True

# Sketch on XZ plane
sketch24 = doc.addObject("Sketcher::SketchObject", "Sketch023")
body.addObject(sketch24)
sketch24.AttachmentSupport = (doc.XZ_Plane, [""])
sketch24.MapMode = "FlatFace"
sketch24.AttachmentOffset = App.Placement(V(0, 0, -16.8), App.Rotation())
add_polygon(sketch24, [(-27, -11), (-27, 11), (29, 11), (29, -11)])  # lines 0-3
sketch24.addConstraint([
    Sketcher.Constraint("Vertical", 0),
    Sketcher.Constraint("Horizontal", 1),
    Sketcher.Constraint("Vertical", 2),
    Sketcher.Constraint("Horizontal", 3),
    Sketcher.Constraint("DistanceX", 1, 1, 1, 2, 56.2),
    Sketcher.Constraint("DistanceY", 0, 1, 0, 2, 22.9),
    Sketcher.Constraint("DistanceX", -1, 1, 1, 2, 29.0),
    Sketcher.Constraint("DistanceY", -1, 1, 0, 2, 11.45),
])
pad22 = doc.addObject("PartDesign::Pad", "Pad021")
body.addObject(pad22)
pad22.Profile = sketch24
pad22.Length = 7
pad22.Reversed = True

# Sketch on XZ plane
sketch25 = doc.addObject("Sketcher::SketchObject", "Sketch024")
body.addObject(sketch25)
sketch25.AttachmentSupport = (doc.XZ_Plane, [""])
sketch25.MapMode = "FlatFace"
sketch25.AttachmentOffset = App.Placement(V(0, 0, -18.3), App.Rotation())
add_polygon(sketch25, [(-30.2, -11.4), (-30.2, 11.4), (-27.2, 11.4), (-27.2, -11.4)])  # lines 0-3
sketch25.addConstraint([
    Sketcher.Constraint("Vertical", 0),
    Sketcher.Constraint("Horizontal", 1),
    Sketcher.Constraint("Vertical", 2),
    Sketcher.Constraint("Horizontal", 3),
    Sketcher.Constraint("DistanceX", 1, 1, 1, 2, 3.0),
    Sketcher.Constraint("DistanceY", 0, 1, 0, 2, 22.9),
    Sketcher.Constraint("DistanceX", 0, 2, -1, 1, 30.2),
    Sketcher.Constraint("DistanceY", -1, 1, 0, 2, 11.45),
])
pad23 = doc.addObject("PartDesign::Pad", "Pad022")
body.addObject(pad23)
pad23.Profile = sketch25
pad23.Length = 7
pad23.Reversed = True

# Sketch on XZ plane
sketch26 = doc.addObject("Sketcher::SketchObject", "Sketch025")
body.addObject(sketch26)
sketch26.AttachmentSupport = (doc.XZ_Plane, [""])
sketch26.MapMode = "FlatFace"
sketch26.AttachmentOffset = App.Placement(V(0, 0, -19.8), App.Rotation())
add_polygon(sketch26, [(29, -11.4), (29, 11.4), (32, 11.4), (32, -11.4)])  # lines 0-3
sketch26.addConstraint([
    Sketcher.Constraint("Vertical", 0),
    Sketcher.Constraint("Horizontal", 1),
    Sketcher.Constraint("Vertical", 2),
    Sketcher.Constraint("Horizontal", 3),
    Sketcher.Constraint("DistanceX", 1, 1, 1, 2, 3.0),
    Sketcher.Constraint("DistanceY", 0, 1, 0, 2, 22.9),
    Sketcher.Constraint("DistanceX", -1, 1, 0, 2, 29.0),
    Sketcher.Constraint("DistanceY", -1, 1, 0, 2, 11.45),
])
pad24 = doc.addObject("PartDesign::Pad", "Pad023")
body.addObject(pad24)
pad24.Profile = sketch26
pad24.Length = 7
pad24.Reversed = True

# Sketch on XY plane
sketch27 = doc.addObject("Sketcher::SketchObject", "Sketch026")
body.addObject(sketch27)
sketch27.AttachmentSupport = (doc.XY_Plane, [""])
sketch27.MapMode = "FlatFace"
sketch27.AttachmentOffset = App.Placement(V(0, 0, -11.45), App.Rotation())
add_polygon(sketch27, [(-23, 21), (-23, 14), (-30, 14), (-30, 21)])  # lines 0-3
sketch27.addConstraint([
    Sketcher.Constraint("Vertical", 0),
    Sketcher.Constraint("Horizontal", 1),
    Sketcher.Constraint("Vertical", 2),
    Sketcher.Constraint("Horizontal", 3),
    Sketcher.Constraint("DistanceX", 1, 2, 1, 1, 7.0),
    Sketcher.Constraint("DistanceY", 0, 2, 0, 1, 6.5),
    Sketcher.Constraint("DistanceX", 0, 2, -1, 1, 23.2),
    Sketcher.Constraint("DistanceY", -1, 1, 0, 2, 14.3),
])
pocket3 = doc.addObject("PartDesign::Pocket", "Pocket002")
body.addObject(pocket3)
pocket3.Profile = sketch27
pocket3.Type = "ThroughAll"
pocket3.Reversed = True

# Sketch on XY plane
sketch28 = doc.addObject("Sketcher::SketchObject", "Sketch027")
body.addObject(sketch28)
sketch28.AttachmentSupport = (doc.XY_Plane, [""])
sketch28.MapMode = "FlatFace"
sketch28.AttachmentOffset = App.Placement(V(0, 0, 11.45), App.Rotation())
add_polygon(sketch28, [(25, 21), (25, 14), (32, 14), (32, 21)])  # lines 0-3
sketch28.addConstraint([
    Sketcher.Constraint("Vertical", 0),
    Sketcher.Constraint("Horizontal", 1),
    Sketcher.Constraint("Vertical", 2),
    Sketcher.Constraint("Horizontal", 3),
    Sketcher.Constraint("DistanceX", 1, 1, 1, 2, 7.0),
    Sketcher.Constraint("DistanceY", 0, 2, 0, 1, 6.5),
    Sketcher.Constraint("DistanceX", -1, 1, 0, 2, 25.0),
    Sketcher.Constraint("DistanceY", -1, 1, 0, 2, 14.3),
])
pocket4 = doc.addObject("PartDesign::Pocket", "Pocket003")
body.addObject(pocket4)
pocket4.Profile = sketch28
pocket4.Type = "ThroughAll"

# Sketch on YZ plane
sketch29 = doc.addObject("Sketcher::SketchObject", "Sketch028")
body.addObject(sketch29)
sketch29.AttachmentSupport = (doc.YZ_Plane, [""])
sketch29.MapMode = "FlatFace"
sketch29.AttachmentOffset = App.Placement(V(0, 0, -23.2), App.Rotation())
add_polygon(sketch29, [(2.7, -14.1), (0, -14.1), (0, -11.4), (2.7, -11.4)])  # lines 0-3
sketch29.addConstraint([
    Sketcher.Constraint("Horizontal", 0),
    Sketcher.Constraint("Vertical", 1),
    Sketcher.Constraint("Horizontal", 2),
    Sketcher.Constraint("Vertical", 3),
    Sketcher.Constraint("PointOnObject", 0, 2, -2),
    Sketcher.Constraint("Equal", 2, 1),
    Sketcher.Constraint("DistanceX", 0, 2, 0, 1, 2.66),
    Sketcher.Constraint("DistanceY", 0, 2, -1, 1, 14.105),
])
pocket5 = doc.addObject("PartDesign::Pocket", "Pocket004")
body.addObject(pocket5)
pocket5.Profile = sketch29
pocket5.Type = "ThroughAll"
pocket5.Reversed = True

# Sketch on YZ plane
sketch30 = doc.addObject("Sketcher::SketchObject", "Sketch029")
body.addObject(sketch30)
sketch30.AttachmentSupport = (doc.YZ_Plane, [""])
sketch30.MapMode = "FlatFace"
sketch30.AttachmentOffset = App.Placement(V(0, 0, -23.2), App.Rotation())
add_polygon(sketch30, [(2.7, 11.4), (0, 11.4), (0, 14.1), (2.7, 14.1)])  # lines 0-3
sketch30.addConstraint([
    Sketcher.Constraint("Horizontal", 0),
    Sketcher.Constraint("Vertical", 1),
    Sketcher.Constraint("Horizontal", 2),
    Sketcher.Constraint("Vertical", 3),
    Sketcher.Constraint("PointOnObject", 0, 2, -2),
    Sketcher.Constraint("Equal", 2, 1),
    Sketcher.Constraint("DistanceX", 0, 2, 0, 1, 2.66),
    Sketcher.Constraint("DistanceY", -1, 1, 0, 2, 11.445),
])
pocket6 = doc.addObject("PartDesign::Pocket", "Pocket005")
body.addObject(pocket6)
pocket6.Profile = sketch30
pocket6.Type = "ThroughAll"
pocket6.Reversed = True

# Sketch on XZ plane
sketch31 = doc.addObject("Sketcher::SketchObject", "Sketch030")
body.addObject(sketch31)
sketch31.AttachmentSupport = (doc.XZ_Plane, [""])
sketch31.MapMode = "FlatFace"
sketch31.AttachmentOffset = App.Placement(V(0, 0, -26.8), App.Rotation())
add_polygon(sketch31, [(29, -4), (29, 4), (32, 4), (32, -4)])  # lines 0-3
sketch31.addConstraint([
    Sketcher.Constraint("Vertical", 0),
    Sketcher.Constraint("Horizontal", 1),
    Sketcher.Constraint("Vertical", 2),
    Sketcher.Constraint("Horizontal", 3),
    Sketcher.Constraint("DistanceX", 1, 1, 1, 2, 3.0),
    Sketcher.Constraint("DistanceY", 0, 1, 0, 2, 8.0),
    Sketcher.Constraint("DistanceX", -1, 1, 0, 2, 29.0),
    Sketcher.Constraint("DistanceY", -1, 1, 0, 2, 4.0),
])
pocket7 = doc.addObject("PartDesign::Pocket", "Pocket006")
body.addObject(pocket7)
pocket7.Profile = sketch31
pocket7.Length = 3
pocket7.Reversed = True

# Sketch on XZ plane
sketch32 = doc.addObject("Sketcher::SketchObject", "Sketch031")
body.addObject(sketch32)
sketch32.AttachmentSupport = (doc.XZ_Plane, [""])
sketch32.MapMode = "FlatFace"
sketch32.AttachmentOffset = App.Placement(V(0, 0, -25.3), App.Rotation())
add_polygon(sketch32, [(-30.2, -11.4), (-30.2, 11.4), (-27.2, 11.4), (-27.2, -11.4)])  # lines 0-3
sketch32.addConstraint([
    Sketcher.Constraint("Vertical", 0),
    Sketcher.Constraint("Horizontal", 1),
    Sketcher.Constraint("Vertical", 2),
    Sketcher.Constraint("Horizontal", 3),
    Sketcher.Constraint("DistanceX", 1, 1, 1, 2, 3.0),
    Sketcher.Constraint("DistanceY", 0, 1, 0, 2, 22.9),
    Sketcher.Constraint("DistanceX", 0, 2, -1, 1, 30.2),
    Sketcher.Constraint("DistanceY", -1, 1, 0, 2, 11.45),
])
pad25 = doc.addObject("PartDesign::Pad", "Pad024")
body.addObject(pad25)
pad25.Profile = sketch32
pad25.Length = 1.5
pad25.Reversed = True

# Sketch on XZ plane
sketch33 = doc.addObject("Sketcher::SketchObject", "Sketch032")
body.addObject(sketch33)
sketch33.AttachmentSupport = (doc.XZ_Plane, [""])
sketch33.MapMode = "FlatFace"
sketch33.AttachmentOffset = App.Placement(V(0, 0, -23.8), App.Rotation())
add_polygon(sketch33, [(-23.2, 14.1), (-23.2, 17.1), (25, 17.1), (25, 14.1)])  # lines 0-3
sketch33.addConstraint([
    Sketcher.Constraint("Vertical", 0),
    Sketcher.Constraint("Horizontal", 1),
    Sketcher.Constraint("Vertical", 2),
    Sketcher.Constraint("Horizontal", 3),
    Sketcher.Constraint("DistanceY", 0, 1, 0, 2, 3.0),
    Sketcher.Constraint("DistanceX", 1, 1, 1, 2, 48.2),
    Sketcher.Constraint("DistanceX", -1, 1, 1, 2, 25.0),
    Sketcher.Constraint("DistanceY", -1, 1, 0, 2, 17.105),
])
pad26 = doc.addObject("PartDesign::Pad", "Pad025")
body.addObject(pad26)
pad26.Profile = sketch33
pad26.Length = 3.1
pad26.Reversed = True

# Sketch on XZ plane
sketch34 = doc.addObject("Sketcher::SketchObject", "Sketch033")
body.addObject(sketch34)
sketch34.AttachmentSupport = (doc.XZ_Plane, [""])
sketch34.MapMode = "FlatFace"
sketch34.AttachmentOffset = App.Placement(V(0, 0, -23.8), App.Rotation())
add_polygon(sketch34, [(-23.2, -17.1), (-23.2, -14.1), (25, -14.1), (25, -17.1)])  # lines 0-3
sketch34.addConstraint([
    Sketcher.Constraint("Vertical", 0),
    Sketcher.Constraint("Horizontal", 1),
    Sketcher.Constraint("Vertical", 2),
    Sketcher.Constraint("Horizontal", 3),
    Sketcher.Constraint("DistanceY", 0, 1, 0, 2, 3.0),
    Sketcher.Constraint("DistanceX", 1, 1, 1, 2, 48.2),
    Sketcher.Constraint("DistanceX", -1, 1, 1, 2, 25.0),
    Sketcher.Constraint("DistanceY", 0, 2, -1, 1, 14.105),
])
pad27 = doc.addObject("PartDesign::Pad", "Pad026")
body.addObject(pad27)
pad27.Profile = sketch34
pad27.Length = 3.1
pad27.Reversed = True

# Sketch on XZ plane
sketch35 = doc.addObject("Sketcher::SketchObject", "Sketch034")
body.addObject(sketch35)
sketch35.AttachmentSupport = (doc.XZ_Plane, [""])
sketch35.MapMode = "FlatFace"
sketch35.AttachmentOffset = App.Placement(V(0, 0, -26.8), App.Rotation())
add_polygon(sketch35, [(29, -11.4), (29, -4), (32, -4), (32, -11.4)])  # lines 0-3
add_polygon(sketch35, [(29, 4), (29, 11.4), (32, 11.4), (32, 4)])  # lines 4-7
sketch35.addConstraint([
    Sketcher.Constraint("Vertical", 0),
    Sketcher.Constraint("Horizontal", 1),
    Sketcher.Constraint("Vertical", 2),
    Sketcher.Constraint("Horizontal", 3),
    Sketcher.Constraint("Vertical", 4),
    Sketcher.Constraint("Horizontal", 5),
    Sketcher.Constraint("Vertical", 6),
    Sketcher.Constraint("Horizontal", 7),
    Sketcher.Constraint("Symmetric", 3, 2, 4, 2, -1),
    Sketcher.Constraint("Symmetric", 1, 2, 6, 2, -1),
    Sketcher.Constraint("DistanceX", 1, 1, 1, 2, 3.0),
    Sketcher.Constraint("DistanceX", -1, 1, 0, 2, 29.0),
    Sketcher.Constraint("DistanceY", 0, 2, -1, 1, 4.0),
    Sketcher.Constraint("DistanceY", 0, 1, 0, 2, 7.45),
])
pad28 = doc.addObject("PartDesign::Pad", "Pad027")
body.addObject(pad28)
pad28.Profile = sketch35
pad28.Length = 0.1
pad28.Reversed = True

# Sketch on XZ plane
sketch36 = doc.addObject("Sketcher::SketchObject", "Sketch035")
body.addObject(sketch36)
sketch36.AttachmentSupport = (doc.XZ_Plane, [""])
sketch36.MapMode = "FlatFace"
sketch36.AttachmentOffset = App.Placement(V(0, 0, -26.8), App.Rotation())
add_polygon(sketch36, [(-30.2, -11.4), (-30.2, 11.4), (-27.2, 11.4), (-27.2, -11.4)])  # lines 0-3
sketch36.addConstraint([
    Sketcher.Constraint("Vertical", 0),
    Sketcher.Constraint("Horizontal", 1),
    Sketcher.Constraint("Vertical", 2),
    Sketcher.Constraint("Horizontal", 3),
    Sketcher.Constraint("DistanceX", 1, 1, 1, 2, 3.0),
    Sketcher.Constraint("DistanceY", 0, 1, 0, 2, 22.9),
    Sketcher.Constraint("DistanceX", 0, 2, -1, 1, 30.2),
    Sketcher.Constraint("DistanceY", -1, 1, 0, 2, 11.45),
])
pad29 = doc.addObject("PartDesign::Pad", "Pad028")
body.addObject(pad29)
pad29.Profile = sketch36
pad29.Length = 0.1
pad29.Reversed = True

# Sketch on XZ plane
sketch37 = doc.addObject("Sketcher::SketchObject", "Sketch036")
body.addObject(sketch37)
sketch37.AttachmentSupport = (doc.XZ_Plane, [""])
sketch37.MapMode = "FlatFace"
sketch37.AttachmentOffset = App.Placement(V(0, 0, -26.9), App.Rotation())
sketch37.addGeometry([
    Part.Circle(V(-15.7, 15.6, 0), V(0, 0, 1), 1),  # 0
    Part.Circle(V(-15.7, -15.6, 0), V(0, 0, 1), 1),  # 1
    Part.Circle(V(17.5, 15.6, 0), V(0, 0, 1), 1),  # 2
    Part.Circle(V(17.5, -15.6, 0), V(0, 0, 1), 1),  # 3
    Part.Circle(V(0.9, 15.6, 0), V(0, 0, 1), 1),  # 4
    Part.Circle(V(0.9, -15.6, 0), V(0, 0, 1), 1),  # 5
], False)
sketch37.addConstraint([
    Sketcher.Constraint("Equal", 0, 1),
    Sketcher.Constraint("Equal", 1, 2),
    Sketcher.Constraint("Equal", 2, 3),
    Sketcher.Constraint("Equal", 3, 4),
    Sketcher.Constraint("Equal", 4, 5),
    Sketcher.Constraint("Symmetric", 0, 3, 1, 3, -1),
    Sketcher.Constraint("Symmetric", 2, 3, 3, 3, -1),
    Sketcher.Constraint("Symmetric", 4, 3, 5, 3, -1),
    Sketcher.Constraint("Horizontal", 0, 3, 2, 3),
    Sketcher.Constraint("Horizontal", 2, 3, 4, 3),
    Sketcher.Constraint("Diameter", 0, 2.0),
    Sketcher.Constraint("DistanceX", 0, 3, -1, 1, 15.7),
    Sketcher.Constraint("DistanceX", -1, 1, 2, 3, 17.5),
    Sketcher.Constraint("DistanceX", -1, 1, 4, 3, 0.9),
    Sketcher.Constraint("DistanceY", 1, 3, 0, 3, 31.21),
])
pocket8 = doc.addObject("PartDesign::Pocket", "Pocket007")
body.addObject(pocket8)
pocket8.Profile = sketch37
pocket8.Length = 10
pocket8.Reversed = True

doc.recompute()
